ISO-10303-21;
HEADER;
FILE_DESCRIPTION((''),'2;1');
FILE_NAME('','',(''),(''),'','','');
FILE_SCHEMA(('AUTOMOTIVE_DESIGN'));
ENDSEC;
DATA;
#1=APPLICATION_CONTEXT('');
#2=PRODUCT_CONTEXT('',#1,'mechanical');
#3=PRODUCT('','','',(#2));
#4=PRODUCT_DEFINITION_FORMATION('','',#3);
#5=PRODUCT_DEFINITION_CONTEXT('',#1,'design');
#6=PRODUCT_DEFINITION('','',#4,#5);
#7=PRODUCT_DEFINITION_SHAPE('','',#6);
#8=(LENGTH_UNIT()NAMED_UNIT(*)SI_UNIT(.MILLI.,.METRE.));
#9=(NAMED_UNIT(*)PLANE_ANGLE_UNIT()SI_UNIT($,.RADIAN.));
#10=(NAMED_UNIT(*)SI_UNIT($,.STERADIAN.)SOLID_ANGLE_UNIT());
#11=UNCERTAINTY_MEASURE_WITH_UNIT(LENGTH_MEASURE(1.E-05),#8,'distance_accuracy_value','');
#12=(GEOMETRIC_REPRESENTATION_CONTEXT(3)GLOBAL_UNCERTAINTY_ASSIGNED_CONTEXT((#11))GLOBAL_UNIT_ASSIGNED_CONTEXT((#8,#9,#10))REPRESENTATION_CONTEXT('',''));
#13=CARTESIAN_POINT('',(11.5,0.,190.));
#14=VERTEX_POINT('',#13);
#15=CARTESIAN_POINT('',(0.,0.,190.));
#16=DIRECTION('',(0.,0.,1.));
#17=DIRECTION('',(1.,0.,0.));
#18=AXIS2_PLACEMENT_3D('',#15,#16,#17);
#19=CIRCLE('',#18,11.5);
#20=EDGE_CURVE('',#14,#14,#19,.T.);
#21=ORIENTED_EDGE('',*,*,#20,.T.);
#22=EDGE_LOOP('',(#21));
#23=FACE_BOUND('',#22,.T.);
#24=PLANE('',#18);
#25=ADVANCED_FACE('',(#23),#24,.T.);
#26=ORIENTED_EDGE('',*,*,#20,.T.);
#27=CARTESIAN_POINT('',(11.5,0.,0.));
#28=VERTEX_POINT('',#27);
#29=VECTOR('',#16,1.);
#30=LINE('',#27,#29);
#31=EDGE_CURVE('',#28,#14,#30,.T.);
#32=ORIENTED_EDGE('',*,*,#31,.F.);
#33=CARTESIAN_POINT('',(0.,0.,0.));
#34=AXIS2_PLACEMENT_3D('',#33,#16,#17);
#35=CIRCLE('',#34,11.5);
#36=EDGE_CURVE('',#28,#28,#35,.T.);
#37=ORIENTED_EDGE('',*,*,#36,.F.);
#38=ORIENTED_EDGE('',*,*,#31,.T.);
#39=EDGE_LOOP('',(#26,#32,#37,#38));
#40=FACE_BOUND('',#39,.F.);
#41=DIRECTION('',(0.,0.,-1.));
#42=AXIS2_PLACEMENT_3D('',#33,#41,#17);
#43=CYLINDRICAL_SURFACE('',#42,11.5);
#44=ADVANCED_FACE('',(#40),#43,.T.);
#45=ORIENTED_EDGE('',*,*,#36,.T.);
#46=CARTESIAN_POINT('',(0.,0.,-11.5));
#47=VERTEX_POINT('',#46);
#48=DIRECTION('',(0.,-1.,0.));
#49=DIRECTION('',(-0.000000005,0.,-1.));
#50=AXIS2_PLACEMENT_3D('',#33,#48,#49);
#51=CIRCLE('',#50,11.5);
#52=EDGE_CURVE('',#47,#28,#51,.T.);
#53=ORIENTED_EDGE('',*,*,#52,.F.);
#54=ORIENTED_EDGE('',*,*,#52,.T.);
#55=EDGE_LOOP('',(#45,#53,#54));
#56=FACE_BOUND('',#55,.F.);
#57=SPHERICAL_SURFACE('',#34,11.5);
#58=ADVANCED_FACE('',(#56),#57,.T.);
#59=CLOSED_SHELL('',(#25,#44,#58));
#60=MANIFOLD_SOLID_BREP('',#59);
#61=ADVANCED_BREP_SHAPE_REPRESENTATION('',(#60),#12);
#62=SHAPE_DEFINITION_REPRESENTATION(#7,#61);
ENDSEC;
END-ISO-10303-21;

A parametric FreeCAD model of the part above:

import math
import FreeCAD as App
import Part
import Sketcher
from FreeCAD import Vector

doc = App.newDocument("Part")
body = doc.addObject("PartDesign::Body", "Body")

sketch1 = doc.addObject("Sketcher::SketchObject", "Sketch")
body.addObject(sketch1)
sketch1.AttachmentSupport = (doc.XY_Plane, [""])
sketch1.MapMode = "FlatFace"
sketch1.addGeometry(Part.Circle(Vector(0, 0, 0), Vector(0, 0, 1), 12), False)
sketch1.addConstraint([
    Sketcher.Constraint("Coincident", 0, 3, -1, 1),
    Sketcher.Constraint("Diameter", 0, 23.0),
])
pad1 = doc.addObject("PartDesign::Pad", "Pad")
body.addObject(pad1)
pad1.Profile = sketch1
pad1.Length = 190

sketch2 = doc.addObject("Sketcher::SketchObject", "Sketch001")
body.addObject(sketch2)
sketch2.AttachmentSupport = (doc.XZ_Plane, [""])
sketch2.MapMode = "FlatFace"
sketch2.addGeometry([
    Part.ArcOfCircle(Part.Circle(Vector(0, 0, 0), Vector(0, 0, 1), 11), math.radians(-90), math.radians(0)),
    Part.LineSegment(Vector(12, 0, 0), Vector(0, 0, 0)),
    Part.LineSegment(Vector(0, 0, 0), Vector(0, -12, 0)),
], False)
sketch2.addConstraint([
    Sketcher.Constraint("Coincident", 0, 2, 1, 1),
    Sketcher.Constraint("Coincident", 1, 2, 2, 1),
    Sketcher.Constraint("Coincident", 2, 2, 0, 1),
    Sketcher.Constraint("Horizontal", 1),
    Sketcher.Constraint("Vertical", 2),
    Sketcher.Constraint("Coincident", 0, 3, -1, 1),
    Sketcher.Constraint("Coincident", 1, 2, -1, 1),
    Sketcher.Constraint("Radius", 0, 11.5),
])
revolution = doc.addObject("PartDesign::Revolution", "Revolution")
body.addObject(revolution)
revolution.Profile = sketch2
revolution.ReferenceAxis = (sketch2, ["V_Axis"])
revolution.Angle = 360

doc.recompute()
